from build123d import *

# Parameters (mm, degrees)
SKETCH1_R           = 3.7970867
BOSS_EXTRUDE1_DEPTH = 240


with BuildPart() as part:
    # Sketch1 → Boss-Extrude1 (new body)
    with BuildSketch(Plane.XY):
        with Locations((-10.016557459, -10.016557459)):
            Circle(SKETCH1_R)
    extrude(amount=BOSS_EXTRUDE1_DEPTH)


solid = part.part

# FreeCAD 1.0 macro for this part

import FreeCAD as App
import Part
import Sketcher

V = App.Vector

doc = App.newDocument("Part")
params = doc.addObject("Spreadsheet::Sheet", "Params")
for row, (alias, value) in enumerate([
    ("pad1_length", "240 mm"),
], start=1):
    params.set(f"A{row}", alias)
    params.set(f"B{row}", "=" + value)
    params.setAlias(f"B{row}", alias)

body = doc.addObject("PartDesign::Body", "Body")

# Sketch on XY plane
sketch1 = body.newObject("Sketcher::SketchObject", "Sketch")
sketch1.AttachmentSupport = (doc.getObject("XY_Plane"), [""])
sketch1.MapMode = "FlatFace"
sketch1.addGeometry(Part.Circle(V(-10, -10, 0), V(0, 0, 1), 3.8), False)
sketch1.addConstraint([
    Sketcher.Constraint("Diameter", 0, 7.594173),
    Sketcher.Constraint("DistanceX", 0, 3, -1, 1, 10.016557),
    Sketcher.Constraint("DistanceY", 0, 3, -1, 1, 10.016557),
])
pad1 = body.newObject("PartDesign::Pad", "Pad")
pad1.Profile = sketch1
pad1.setExpression("Length", "Params.pad1_length")

doc.recompute()
